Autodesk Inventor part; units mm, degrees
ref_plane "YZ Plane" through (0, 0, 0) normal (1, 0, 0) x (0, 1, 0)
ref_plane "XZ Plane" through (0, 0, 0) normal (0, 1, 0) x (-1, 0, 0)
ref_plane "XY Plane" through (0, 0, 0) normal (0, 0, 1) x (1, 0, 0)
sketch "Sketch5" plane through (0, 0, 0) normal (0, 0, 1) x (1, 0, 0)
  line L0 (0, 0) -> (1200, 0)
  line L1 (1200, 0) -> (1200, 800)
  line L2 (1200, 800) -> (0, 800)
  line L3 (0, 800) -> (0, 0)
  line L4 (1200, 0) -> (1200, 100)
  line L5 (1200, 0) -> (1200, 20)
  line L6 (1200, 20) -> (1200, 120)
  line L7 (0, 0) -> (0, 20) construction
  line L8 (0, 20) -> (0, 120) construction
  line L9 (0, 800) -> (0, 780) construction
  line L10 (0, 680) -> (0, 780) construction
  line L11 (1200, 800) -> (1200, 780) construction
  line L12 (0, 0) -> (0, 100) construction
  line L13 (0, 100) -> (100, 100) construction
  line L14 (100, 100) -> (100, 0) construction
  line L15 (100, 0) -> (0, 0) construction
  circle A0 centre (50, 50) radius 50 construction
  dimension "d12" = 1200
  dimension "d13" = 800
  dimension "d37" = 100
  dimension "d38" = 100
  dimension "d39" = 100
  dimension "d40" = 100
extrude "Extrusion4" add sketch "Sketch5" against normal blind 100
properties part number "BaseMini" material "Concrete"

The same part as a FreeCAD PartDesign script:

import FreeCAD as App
import Part
import Sketcher


def add_polygon(sketch, points):
    """Adds a closed chain of lines whose ends are joined by coincident constraints."""
    first, n = sketch.GeometryCount, len(points)
    for a, b in zip(points, points[1:] + points[:1]):
        sketch.addGeometry(Part.LineSegment(App.Vector(*a, 0), App.Vector(*b, 0)), False)
    for i in range(n):
        sketch.addConstraint(Sketcher.Constraint("Coincident", first + i, 2, first + (i + 1) % n, 1))

doc = App.newDocument("Part")
body = doc.addObject("PartDesign::Body", "Body")

# Sketch on XY plane
sketch1 = doc.addObject("Sketcher::SketchObject", "Sketch")
body.addObject(sketch1)
sketch1.AttachmentSupport = (doc.XY_Plane, [""])
sketch1.MapMode = "FlatFace"
add_polygon(sketch1, [(0, 800), (0, 0), (1200, 0), (1200, 800)])  # lines 0-3
sketch1.addConstraint(Sketcher.Constraint("Vertical", 0))
sketch1.addConstraint(Sketcher.Constraint("Horizontal", 1))
sketch1.addConstraint(Sketcher.Constraint("Vertical", 2))
sketch1.addConstraint(Sketcher.Constraint("Horizontal", 3))
sketch1.addConstraint(Sketcher.Constraint("Coincident", 0, 2, -1, 1))
sketch1.addConstraint(Sketcher.Constraint("DistanceX", 1, 1, 1, 2, 1200.0))
sketch1.addConstraint(Sketcher.Constraint("DistanceY", 0, 2, 0, 1, 800.0))
pad1 = doc.addObject("PartDesign::Pad", "Pad")
body.addObject(pad1)
pad1.Profile = sketch1
pad1.Length = 100
pad1.Reversed = True

doc.recompute()
